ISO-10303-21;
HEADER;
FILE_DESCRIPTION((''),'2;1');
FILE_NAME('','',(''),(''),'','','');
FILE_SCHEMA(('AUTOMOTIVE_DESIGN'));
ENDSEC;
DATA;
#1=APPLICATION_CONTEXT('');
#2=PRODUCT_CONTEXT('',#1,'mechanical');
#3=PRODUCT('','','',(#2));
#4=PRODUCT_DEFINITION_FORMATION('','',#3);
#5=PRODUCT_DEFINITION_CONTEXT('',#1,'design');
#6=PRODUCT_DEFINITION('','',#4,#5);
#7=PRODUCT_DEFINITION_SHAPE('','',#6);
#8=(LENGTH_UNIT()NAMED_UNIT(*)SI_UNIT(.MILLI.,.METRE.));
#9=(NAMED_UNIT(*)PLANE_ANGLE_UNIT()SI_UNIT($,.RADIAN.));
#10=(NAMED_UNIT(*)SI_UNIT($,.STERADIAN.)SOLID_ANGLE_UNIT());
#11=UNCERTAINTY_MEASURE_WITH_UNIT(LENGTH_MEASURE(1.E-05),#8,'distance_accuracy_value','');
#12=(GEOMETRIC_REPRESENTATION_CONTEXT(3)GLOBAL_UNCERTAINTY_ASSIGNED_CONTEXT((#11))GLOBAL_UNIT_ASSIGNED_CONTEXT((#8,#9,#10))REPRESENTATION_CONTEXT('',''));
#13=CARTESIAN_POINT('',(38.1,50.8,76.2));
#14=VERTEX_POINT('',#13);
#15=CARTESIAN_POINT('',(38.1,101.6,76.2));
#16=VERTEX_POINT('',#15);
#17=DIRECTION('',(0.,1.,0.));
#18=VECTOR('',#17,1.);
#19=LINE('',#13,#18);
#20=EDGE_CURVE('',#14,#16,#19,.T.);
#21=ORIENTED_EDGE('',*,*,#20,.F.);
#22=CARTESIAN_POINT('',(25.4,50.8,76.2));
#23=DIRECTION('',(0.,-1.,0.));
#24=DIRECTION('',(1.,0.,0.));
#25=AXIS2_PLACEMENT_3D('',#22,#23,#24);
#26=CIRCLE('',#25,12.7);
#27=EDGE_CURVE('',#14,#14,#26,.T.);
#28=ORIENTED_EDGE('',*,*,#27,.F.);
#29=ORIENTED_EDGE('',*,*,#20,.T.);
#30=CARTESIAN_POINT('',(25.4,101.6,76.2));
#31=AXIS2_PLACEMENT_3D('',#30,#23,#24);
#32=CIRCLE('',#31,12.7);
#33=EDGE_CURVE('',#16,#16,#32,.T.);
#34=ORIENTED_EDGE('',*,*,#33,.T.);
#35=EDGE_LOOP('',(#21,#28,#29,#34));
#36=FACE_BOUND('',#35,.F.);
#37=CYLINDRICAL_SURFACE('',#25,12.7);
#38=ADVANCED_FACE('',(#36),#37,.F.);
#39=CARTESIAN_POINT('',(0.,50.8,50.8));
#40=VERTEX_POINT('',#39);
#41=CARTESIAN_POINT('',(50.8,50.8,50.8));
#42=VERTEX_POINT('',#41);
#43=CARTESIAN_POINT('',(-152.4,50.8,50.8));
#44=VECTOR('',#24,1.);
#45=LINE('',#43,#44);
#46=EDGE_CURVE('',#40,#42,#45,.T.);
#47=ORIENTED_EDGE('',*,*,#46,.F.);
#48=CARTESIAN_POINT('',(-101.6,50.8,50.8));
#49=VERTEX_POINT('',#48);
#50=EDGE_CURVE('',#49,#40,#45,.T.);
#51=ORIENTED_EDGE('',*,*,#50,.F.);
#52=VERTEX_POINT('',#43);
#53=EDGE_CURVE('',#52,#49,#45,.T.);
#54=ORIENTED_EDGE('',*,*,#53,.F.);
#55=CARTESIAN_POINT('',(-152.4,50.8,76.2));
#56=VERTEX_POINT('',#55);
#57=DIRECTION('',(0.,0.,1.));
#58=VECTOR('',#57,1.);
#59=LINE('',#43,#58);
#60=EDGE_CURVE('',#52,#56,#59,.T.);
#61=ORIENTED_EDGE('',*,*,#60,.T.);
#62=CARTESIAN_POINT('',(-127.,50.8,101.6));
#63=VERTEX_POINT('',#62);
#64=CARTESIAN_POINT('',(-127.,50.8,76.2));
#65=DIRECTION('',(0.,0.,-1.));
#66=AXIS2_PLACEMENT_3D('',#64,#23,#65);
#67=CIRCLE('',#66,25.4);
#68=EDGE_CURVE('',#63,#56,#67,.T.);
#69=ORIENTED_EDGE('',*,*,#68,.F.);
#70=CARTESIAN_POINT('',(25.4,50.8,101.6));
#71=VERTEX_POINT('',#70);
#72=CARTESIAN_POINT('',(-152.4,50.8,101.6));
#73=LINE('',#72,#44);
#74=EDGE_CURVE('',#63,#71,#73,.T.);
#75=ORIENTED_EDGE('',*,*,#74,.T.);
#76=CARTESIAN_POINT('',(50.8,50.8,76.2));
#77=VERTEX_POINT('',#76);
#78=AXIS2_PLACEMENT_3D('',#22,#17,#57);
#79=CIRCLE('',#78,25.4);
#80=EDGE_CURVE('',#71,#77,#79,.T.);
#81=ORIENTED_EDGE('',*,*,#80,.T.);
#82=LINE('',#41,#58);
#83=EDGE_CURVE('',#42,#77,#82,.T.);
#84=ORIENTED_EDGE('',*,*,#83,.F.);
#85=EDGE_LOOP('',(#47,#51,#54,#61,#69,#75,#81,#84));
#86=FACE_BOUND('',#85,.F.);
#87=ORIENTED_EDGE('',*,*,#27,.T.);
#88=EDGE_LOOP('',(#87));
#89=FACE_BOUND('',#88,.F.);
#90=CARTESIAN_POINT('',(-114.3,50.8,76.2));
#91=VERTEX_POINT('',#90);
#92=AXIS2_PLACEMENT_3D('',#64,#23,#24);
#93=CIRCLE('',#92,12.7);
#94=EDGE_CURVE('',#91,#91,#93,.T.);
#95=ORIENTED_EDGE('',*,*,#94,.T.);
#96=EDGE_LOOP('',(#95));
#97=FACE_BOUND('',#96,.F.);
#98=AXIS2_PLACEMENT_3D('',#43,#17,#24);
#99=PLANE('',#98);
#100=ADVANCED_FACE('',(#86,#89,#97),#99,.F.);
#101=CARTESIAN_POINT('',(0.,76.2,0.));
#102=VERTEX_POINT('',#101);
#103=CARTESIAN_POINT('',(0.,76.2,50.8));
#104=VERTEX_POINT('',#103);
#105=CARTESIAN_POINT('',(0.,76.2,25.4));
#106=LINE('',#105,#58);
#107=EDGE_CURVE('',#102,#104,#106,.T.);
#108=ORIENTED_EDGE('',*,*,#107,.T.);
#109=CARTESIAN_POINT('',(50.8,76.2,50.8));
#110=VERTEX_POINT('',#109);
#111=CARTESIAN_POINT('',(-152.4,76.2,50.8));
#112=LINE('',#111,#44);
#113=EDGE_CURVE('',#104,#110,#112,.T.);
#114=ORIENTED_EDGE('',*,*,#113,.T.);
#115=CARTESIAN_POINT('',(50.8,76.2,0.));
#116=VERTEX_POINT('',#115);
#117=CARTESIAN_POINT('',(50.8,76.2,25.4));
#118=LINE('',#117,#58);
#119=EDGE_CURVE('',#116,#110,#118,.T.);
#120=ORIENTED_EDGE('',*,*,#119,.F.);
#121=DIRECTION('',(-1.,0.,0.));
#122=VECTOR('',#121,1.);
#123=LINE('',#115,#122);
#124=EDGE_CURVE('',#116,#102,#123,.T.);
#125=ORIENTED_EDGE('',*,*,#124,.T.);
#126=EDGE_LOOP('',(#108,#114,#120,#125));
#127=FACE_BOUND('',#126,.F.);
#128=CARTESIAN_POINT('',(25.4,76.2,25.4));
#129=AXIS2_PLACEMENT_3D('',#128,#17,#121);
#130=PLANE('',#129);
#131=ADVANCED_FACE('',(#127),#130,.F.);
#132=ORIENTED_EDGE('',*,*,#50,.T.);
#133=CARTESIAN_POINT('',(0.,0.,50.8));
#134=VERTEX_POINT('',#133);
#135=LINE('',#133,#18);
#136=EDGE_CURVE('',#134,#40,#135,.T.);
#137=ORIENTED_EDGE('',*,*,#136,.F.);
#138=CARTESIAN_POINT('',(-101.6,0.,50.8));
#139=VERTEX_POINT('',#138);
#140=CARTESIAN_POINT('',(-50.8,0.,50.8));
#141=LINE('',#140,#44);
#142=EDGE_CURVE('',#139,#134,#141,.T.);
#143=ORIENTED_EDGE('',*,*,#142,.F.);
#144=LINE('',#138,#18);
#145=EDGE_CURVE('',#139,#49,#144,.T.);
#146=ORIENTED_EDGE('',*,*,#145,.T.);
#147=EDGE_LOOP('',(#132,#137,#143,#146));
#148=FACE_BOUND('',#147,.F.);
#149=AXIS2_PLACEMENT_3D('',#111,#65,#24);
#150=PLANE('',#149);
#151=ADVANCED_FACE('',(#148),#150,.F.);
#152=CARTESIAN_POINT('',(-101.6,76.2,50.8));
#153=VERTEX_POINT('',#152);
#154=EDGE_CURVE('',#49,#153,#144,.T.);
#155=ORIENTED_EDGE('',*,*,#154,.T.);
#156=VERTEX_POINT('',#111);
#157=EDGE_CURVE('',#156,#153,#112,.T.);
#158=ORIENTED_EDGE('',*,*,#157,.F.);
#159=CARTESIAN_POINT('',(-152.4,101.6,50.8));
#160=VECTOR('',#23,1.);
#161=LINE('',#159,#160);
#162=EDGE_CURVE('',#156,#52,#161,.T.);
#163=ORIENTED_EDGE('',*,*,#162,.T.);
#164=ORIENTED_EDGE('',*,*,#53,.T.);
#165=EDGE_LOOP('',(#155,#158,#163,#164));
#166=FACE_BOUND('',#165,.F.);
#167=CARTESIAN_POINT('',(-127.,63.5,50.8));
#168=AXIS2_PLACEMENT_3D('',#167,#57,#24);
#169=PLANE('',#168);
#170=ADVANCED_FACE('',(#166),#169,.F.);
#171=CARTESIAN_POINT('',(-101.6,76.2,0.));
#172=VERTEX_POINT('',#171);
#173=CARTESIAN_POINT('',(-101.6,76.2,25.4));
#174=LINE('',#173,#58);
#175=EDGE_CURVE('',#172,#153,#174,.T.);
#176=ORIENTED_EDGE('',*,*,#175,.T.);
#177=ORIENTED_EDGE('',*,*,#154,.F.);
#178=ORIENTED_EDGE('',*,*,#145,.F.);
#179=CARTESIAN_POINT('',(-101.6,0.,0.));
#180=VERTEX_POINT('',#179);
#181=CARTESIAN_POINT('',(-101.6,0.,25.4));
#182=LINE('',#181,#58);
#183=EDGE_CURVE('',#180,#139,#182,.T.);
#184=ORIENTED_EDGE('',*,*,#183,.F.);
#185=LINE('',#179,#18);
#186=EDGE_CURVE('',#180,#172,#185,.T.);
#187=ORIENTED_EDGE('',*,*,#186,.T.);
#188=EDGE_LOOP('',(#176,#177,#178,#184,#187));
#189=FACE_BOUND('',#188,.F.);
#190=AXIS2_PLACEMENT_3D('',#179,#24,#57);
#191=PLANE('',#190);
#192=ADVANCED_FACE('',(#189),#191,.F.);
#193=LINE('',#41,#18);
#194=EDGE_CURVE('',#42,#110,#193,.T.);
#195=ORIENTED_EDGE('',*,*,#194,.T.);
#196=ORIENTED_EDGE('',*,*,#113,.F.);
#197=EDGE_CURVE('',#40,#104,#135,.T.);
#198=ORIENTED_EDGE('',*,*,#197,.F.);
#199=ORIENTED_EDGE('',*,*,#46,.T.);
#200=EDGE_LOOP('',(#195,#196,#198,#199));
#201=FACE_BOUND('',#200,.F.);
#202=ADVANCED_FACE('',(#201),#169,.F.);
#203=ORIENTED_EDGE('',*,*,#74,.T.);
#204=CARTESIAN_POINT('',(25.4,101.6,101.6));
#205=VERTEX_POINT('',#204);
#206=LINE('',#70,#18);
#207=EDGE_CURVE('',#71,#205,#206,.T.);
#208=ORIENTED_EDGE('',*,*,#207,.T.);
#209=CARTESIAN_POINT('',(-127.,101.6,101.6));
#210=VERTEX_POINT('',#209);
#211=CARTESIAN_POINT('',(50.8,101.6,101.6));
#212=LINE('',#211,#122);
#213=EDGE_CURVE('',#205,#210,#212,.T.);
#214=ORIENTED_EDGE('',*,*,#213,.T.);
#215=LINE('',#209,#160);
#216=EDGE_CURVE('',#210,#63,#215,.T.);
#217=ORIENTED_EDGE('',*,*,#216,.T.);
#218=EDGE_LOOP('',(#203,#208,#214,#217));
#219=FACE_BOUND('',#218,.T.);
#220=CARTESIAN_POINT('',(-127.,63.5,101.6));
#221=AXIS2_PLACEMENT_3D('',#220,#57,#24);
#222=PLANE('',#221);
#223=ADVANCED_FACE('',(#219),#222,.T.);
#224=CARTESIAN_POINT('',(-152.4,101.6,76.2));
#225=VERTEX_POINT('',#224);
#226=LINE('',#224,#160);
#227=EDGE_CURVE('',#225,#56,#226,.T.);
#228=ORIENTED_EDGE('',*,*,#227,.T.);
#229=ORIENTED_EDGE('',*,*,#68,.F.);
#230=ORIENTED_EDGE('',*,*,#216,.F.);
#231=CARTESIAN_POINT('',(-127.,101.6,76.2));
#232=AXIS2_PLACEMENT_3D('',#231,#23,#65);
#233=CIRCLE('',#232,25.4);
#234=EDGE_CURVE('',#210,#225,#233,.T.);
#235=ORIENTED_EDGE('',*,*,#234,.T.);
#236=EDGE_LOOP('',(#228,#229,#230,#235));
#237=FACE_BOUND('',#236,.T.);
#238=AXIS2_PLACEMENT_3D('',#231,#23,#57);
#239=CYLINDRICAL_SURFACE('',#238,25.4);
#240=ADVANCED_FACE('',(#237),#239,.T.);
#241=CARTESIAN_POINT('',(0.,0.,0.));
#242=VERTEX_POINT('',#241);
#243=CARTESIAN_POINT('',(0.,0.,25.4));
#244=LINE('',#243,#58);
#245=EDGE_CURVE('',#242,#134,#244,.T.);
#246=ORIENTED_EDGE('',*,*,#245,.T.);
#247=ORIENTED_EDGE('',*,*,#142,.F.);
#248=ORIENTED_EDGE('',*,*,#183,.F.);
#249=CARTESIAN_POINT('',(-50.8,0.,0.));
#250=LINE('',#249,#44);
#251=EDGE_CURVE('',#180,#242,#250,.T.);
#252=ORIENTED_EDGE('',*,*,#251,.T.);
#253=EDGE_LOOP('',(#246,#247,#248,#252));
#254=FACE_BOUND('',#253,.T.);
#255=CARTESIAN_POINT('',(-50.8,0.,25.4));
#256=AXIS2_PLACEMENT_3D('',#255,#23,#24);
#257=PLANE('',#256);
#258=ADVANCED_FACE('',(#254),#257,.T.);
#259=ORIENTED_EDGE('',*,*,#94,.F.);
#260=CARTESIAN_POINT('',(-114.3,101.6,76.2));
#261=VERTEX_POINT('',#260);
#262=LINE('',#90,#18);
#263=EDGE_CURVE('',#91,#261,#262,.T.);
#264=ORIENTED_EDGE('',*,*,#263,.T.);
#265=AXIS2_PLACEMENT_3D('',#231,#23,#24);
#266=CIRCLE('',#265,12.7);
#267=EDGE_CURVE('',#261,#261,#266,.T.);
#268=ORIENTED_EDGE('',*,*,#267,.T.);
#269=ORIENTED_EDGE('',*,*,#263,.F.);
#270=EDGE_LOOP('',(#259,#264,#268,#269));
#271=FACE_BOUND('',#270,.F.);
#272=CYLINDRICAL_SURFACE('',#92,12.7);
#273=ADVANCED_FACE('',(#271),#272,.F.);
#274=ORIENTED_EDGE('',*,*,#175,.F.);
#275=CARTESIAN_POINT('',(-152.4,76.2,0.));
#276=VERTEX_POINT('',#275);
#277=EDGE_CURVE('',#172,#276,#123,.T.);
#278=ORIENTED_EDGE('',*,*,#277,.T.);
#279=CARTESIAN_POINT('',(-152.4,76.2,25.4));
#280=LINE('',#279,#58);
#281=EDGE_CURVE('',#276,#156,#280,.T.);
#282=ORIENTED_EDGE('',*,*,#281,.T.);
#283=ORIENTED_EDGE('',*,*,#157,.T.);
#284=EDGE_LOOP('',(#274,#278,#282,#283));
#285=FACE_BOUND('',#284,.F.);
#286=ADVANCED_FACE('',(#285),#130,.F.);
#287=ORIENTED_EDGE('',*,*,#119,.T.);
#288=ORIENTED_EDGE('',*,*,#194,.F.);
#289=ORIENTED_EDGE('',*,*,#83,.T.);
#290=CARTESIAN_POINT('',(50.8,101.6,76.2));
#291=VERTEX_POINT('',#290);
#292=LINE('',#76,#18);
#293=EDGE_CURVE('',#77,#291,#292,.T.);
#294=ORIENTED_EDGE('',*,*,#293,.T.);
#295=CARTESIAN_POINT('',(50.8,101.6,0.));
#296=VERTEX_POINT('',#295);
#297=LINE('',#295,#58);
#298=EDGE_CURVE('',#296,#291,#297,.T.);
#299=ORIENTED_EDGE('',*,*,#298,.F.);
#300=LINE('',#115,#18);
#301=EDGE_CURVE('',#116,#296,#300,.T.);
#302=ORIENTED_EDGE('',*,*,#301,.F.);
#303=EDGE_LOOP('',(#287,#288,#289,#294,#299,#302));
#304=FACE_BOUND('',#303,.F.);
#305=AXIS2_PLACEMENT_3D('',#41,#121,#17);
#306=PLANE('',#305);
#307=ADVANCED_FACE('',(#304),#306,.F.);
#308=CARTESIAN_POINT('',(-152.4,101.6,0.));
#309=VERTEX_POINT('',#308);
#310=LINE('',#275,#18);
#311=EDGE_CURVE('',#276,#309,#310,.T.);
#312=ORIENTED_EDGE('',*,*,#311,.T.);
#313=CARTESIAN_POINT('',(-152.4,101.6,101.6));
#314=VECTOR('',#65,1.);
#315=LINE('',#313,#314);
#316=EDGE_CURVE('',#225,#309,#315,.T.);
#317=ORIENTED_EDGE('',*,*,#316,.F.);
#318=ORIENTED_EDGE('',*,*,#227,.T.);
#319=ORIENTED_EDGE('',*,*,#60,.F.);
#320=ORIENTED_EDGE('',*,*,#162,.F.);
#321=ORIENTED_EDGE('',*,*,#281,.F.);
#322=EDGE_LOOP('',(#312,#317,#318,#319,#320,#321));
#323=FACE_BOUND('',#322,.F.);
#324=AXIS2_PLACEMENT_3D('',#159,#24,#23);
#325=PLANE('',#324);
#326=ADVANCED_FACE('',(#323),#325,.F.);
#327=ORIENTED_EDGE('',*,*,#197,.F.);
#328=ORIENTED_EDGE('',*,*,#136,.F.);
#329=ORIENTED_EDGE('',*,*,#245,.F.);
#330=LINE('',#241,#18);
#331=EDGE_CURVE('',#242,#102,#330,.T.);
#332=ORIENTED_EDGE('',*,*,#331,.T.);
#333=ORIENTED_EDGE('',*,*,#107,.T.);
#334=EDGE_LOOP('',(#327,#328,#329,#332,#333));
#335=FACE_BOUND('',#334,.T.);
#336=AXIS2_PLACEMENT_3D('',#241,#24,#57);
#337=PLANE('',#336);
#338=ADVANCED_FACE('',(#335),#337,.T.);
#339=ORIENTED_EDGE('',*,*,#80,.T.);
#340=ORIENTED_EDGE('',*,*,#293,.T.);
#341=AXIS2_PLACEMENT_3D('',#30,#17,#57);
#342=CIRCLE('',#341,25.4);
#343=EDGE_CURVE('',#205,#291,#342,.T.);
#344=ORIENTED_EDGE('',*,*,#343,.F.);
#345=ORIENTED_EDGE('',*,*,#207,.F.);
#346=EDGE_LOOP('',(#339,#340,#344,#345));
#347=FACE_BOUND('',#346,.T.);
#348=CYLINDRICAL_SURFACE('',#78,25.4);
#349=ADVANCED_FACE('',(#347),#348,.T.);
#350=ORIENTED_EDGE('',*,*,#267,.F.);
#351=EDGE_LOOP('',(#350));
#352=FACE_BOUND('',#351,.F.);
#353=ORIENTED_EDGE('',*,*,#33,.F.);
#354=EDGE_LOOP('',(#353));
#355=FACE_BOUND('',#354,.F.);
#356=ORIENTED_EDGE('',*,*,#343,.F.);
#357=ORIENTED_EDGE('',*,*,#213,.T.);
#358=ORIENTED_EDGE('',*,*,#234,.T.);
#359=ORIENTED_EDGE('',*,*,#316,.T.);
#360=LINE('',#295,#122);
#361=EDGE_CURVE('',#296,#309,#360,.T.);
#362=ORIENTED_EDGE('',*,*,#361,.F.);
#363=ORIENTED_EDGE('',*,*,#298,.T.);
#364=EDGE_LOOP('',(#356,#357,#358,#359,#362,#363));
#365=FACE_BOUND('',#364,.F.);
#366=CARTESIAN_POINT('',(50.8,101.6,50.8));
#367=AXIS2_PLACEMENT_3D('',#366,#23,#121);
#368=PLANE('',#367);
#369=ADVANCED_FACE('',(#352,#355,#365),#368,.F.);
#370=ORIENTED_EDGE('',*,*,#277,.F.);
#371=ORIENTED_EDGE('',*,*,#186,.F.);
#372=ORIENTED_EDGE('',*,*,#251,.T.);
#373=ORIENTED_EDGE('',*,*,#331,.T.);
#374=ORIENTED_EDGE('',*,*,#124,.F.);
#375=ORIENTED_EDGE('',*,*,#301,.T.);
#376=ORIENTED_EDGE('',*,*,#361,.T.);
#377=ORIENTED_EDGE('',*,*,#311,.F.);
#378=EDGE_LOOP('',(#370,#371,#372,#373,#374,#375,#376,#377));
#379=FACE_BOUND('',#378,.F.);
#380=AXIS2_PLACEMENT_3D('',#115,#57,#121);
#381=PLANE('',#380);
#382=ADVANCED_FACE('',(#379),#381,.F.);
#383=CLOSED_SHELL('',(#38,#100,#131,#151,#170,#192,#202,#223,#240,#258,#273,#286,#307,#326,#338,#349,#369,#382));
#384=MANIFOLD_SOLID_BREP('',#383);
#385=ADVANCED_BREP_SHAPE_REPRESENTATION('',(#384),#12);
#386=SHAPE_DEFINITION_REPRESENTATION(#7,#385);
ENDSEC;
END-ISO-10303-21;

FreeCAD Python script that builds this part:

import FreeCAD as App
import Part
import Sketcher
Q = App.Units.Quantity


def edges_at(feature, points):
    """Names of the edges that pass closest to the given points."""
    edges = feature.Shape.Edges
    near = lambda p: min(range(len(edges)), key=lambda i: edges[i].distToShape(Part.Vertex(*p))[0])
    return sorted({f"Edge{near(p) + 1}" for p in points})

doc = App.newDocument("Part")
params = doc.addObject("Spreadsheet::Sheet", "Params")
for row, (alias, value) in enumerate([
    ("sketch1_width", "4 in"),
    ("sketch1_height", "2 in"),
    ("pad1_length", "3 in"),
    ("sketch2_width", "8 in"),
    ("sketch2_height", "2 in"),
    ("pad2_length", "1 in"),
    ("sketch3_width", "8 in"),
    ("sketch3_height", "2 in"),
    ("pad3_length", "2 in"),
    ("fillet_radius", "1 in"),
    ("fillet2_radius", "1 in"),
    ("sketch4_diameter", "1 in"),
    ("pocket1_length", "2 in"),
], start=1):
    params.set(f"A{row}", alias)
    params.set(f"B{row}", "=" + value)
    params.setAlias(f"B{row}", alias)

body = doc.addObject("PartDesign::Body", "Body")

sketch1 = body.newObject("Sketcher::SketchObject", "Sketch")
sketch1.AttachmentSupport = (doc.getObject("XZ_Plane"), [""])
sketch1.MapMode = "FlatFace"
sketch1.addGeometry(Part.LineSegment(App.Vector(-102, 51, 0), App.Vector(-102, 0, 0)), False)
sketch1.addGeometry(Part.LineSegment(App.Vector(-102, 0, 0), App.Vector(0, 0, 0)), False)
sketch1.addGeometry(Part.LineSegment(App.Vector(0, 0, 0), App.Vector(0, 51, 0)), False)
sketch1.addGeometry(Part.LineSegment(App.Vector(0, 51, 0), App.Vector(-102, 51, 0)), False)
sketch1.addConstraint(Sketcher.Constraint("Coincident", 0, 2, 1, 1))
sketch1.addConstraint(Sketcher.Constraint("Coincident", 1, 2, 2, 1))
sketch1.addConstraint(Sketcher.Constraint("Coincident", 2, 2, 3, 1))
sketch1.addConstraint(Sketcher.Constraint("Coincident", 3, 2, 0, 1))
sketch1.addConstraint(Sketcher.Constraint("Vertical", 0))
sketch1.addConstraint(Sketcher.Constraint("Horizontal", 1))
sketch1.addConstraint(Sketcher.Constraint("Vertical", 2))
sketch1.addConstraint(Sketcher.Constraint("Horizontal", 3))
sketch1.addConstraint(Sketcher.Constraint("Coincident", 1, 2, -1, 1))
sketch1.addConstraint(Sketcher.Constraint("DistanceX", 1, 1, 1, 2, Q("4 in")))
sketch1.addConstraint(Sketcher.Constraint("DistanceY", 0, 2, 0, 1, Q("2 in")))
sketch1.setExpression("Constraints[9]", "Params.sketch1_width")
sketch1.setExpression("Constraints[10]", "Params.sketch1_height")
pad1 = body.newObject("PartDesign::Pad", "Pad")
pad1.Profile = sketch1
pad1.setExpression("Length", "Params.pad1_length")
pad1.Reversed = True

sketch2 = body.newObject("Sketcher::SketchObject", "Sketch001")
sketch2.AttachmentSupport = (doc.getObject("XZ_Plane"), [""])
sketch2.MapMode = "FlatFace"
sketch2.AttachmentOffset = App.Placement(App.Vector(0, 0, -3 * 25.4), App.Rotation())
sketch2.addGeometry(Part.LineSegment(App.Vector(51, 51, 0), App.Vector(51, 0, 0)), False)
sketch2.addGeometry(Part.LineSegment(App.Vector(51, 0, 0), App.Vector(-152, 0, 0)), False)
sketch2.addGeometry(Part.LineSegment(App.Vector(-152, 0, 0), App.Vector(-152, 51, 0)), False)
sketch2.addGeometry(Part.LineSegment(App.Vector(-152, 51, 0), App.Vector(51, 51, 0)), False)
sketch2.addConstraint(Sketcher.Constraint("Coincident", 0, 2, 1, 1))
sketch2.addConstraint(Sketcher.Constraint("Coincident", 1, 2, 2, 1))
sketch2.addConstraint(Sketcher.Constraint("Coincident", 2, 2, 3, 1))
sketch2.addConstraint(Sketcher.Constraint("Coincident", 3, 2, 0, 1))
sketch2.addConstraint(Sketcher.Constraint("Vertical", 0))
sketch2.addConstraint(Sketcher.Constraint("Horizontal", 1))
sketch2.addConstraint(Sketcher.Constraint("Vertical", 2))
sketch2.addConstraint(Sketcher.Constraint("Horizontal", 3))
sketch2.addConstraint(Sketcher.Constraint("PointOnObject", 0, 2, -1))
sketch2.addConstraint(Sketcher.Constraint("DistanceX", 1, 2, 1, 1, Q("8 in")))
sketch2.addConstraint(Sketcher.Constraint("DistanceY", 0, 2, 0, 1, Q("2 in")))
sketch2.addConstraint(Sketcher.Constraint("DistanceX", -1, 1, 0, 2, Q("2 in")))
sketch2.setExpression("Constraints[9]", "Params.sketch2_width")
sketch2.setExpression("Constraints[10]", "Params.sketch2_height")
pad2 = body.newObject("PartDesign::Pad", "Pad001")
pad2.Profile = sketch2
pad2.setExpression("Length", "Params.pad2_length")
pad2.Reversed = True

sketch3 = body.newObject("Sketcher::SketchObject", "Sketch002")
sketch3.AttachmentSupport = (doc.getObject("XY_Plane"), [""])
sketch3.MapMode = "FlatFace"
sketch3.AttachmentOffset = App.Placement(App.Vector(0, 0, 2 * 25.4), App.Rotation())
sketch3.addGeometry(Part.LineSegment(App.Vector(-152, 51, 0), App.Vector(51, 51, 0)), False)
sketch3.addGeometry(Part.LineSegment(App.Vector(51, 51, 0), App.Vector(51, 102, 0)), False)
sketch3.addGeometry(Part.LineSegment(App.Vector(51, 102, 0), App.Vector(-152, 102, 0)), False)
sketch3.addGeometry(Part.LineSegment(App.Vector(-152, 102, 0), App.Vector(-152, 51, 0)), False)
sketch3.addConstraint(Sketcher.Constraint("Coincident", 0, 2, 1, 1))
sketch3.addConstraint(Sketcher.Constraint("Coincident", 1, 2, 2, 1))
sketch3.addConstraint(Sketcher.Constraint("Coincident", 2, 2, 3, 1))
sketch3.addConstraint(Sketcher.Constraint("Coincident", 3, 2, 0, 1))
sketch3.addConstraint(Sketcher.Constraint("Horizontal", 0))
sketch3.addConstraint(Sketcher.Constraint("Vertical", 1))
sketch3.addConstraint(Sketcher.Constraint("Horizontal", 2))
sketch3.addConstraint(Sketcher.Constraint("Vertical", 3))
sketch3.addConstraint(Sketcher.Constraint("DistanceX", 0, 1, 0, 2, Q("8 in")))
sketch3.addConstraint(Sketcher.Constraint("DistanceY", 1, 1, 1, 2, Q("2 in")))
sketch3.addConstraint(Sketcher.Constraint("DistanceX", -1, 1, 0, 2, Q("2 in")))
sketch3.addConstraint(Sketcher.Constraint("DistanceY", -1, 1, 0, 2, Q("2 in")))
sketch3.setExpression("Constraints[8]", "Params.sketch3_width")
sketch3.setExpression("Constraints[9]", "Params.sketch3_height")
pad3 = body.newObject("PartDesign::Pad", "Pad002")
pad3.Profile = sketch3
pad3.setExpression("Length", "Params.pad3_length")
doc.recompute()

fillet = body.newObject("PartDesign::Fillet", "Fillet")
fillet.Base = (pad3, edges_at(pad3, [(50.8, 76.2, 101.6)]))
fillet.setExpression("Radius", "Params.fillet_radius")
doc.recompute()

fillet2 = body.newObject("PartDesign::Fillet", "Fillet001")
fillet2.Base = (fillet, edges_at(fillet, [(-152.4, 76.2, 101.6)]))
fillet2.setExpression("Radius", "Params.fillet2_radius")

sketch4 = body.newObject("Sketcher::SketchObject", "Sketch003")
sketch4.AttachmentSupport = (doc.getObject("XZ_Plane"), [""])
sketch4.MapMode = "FlatFace"
sketch4.AttachmentOffset = App.Placement(App.Vector(0, 0, -2 * 25.4), App.Rotation())
sketch4.addGeometry(Part.Circle(App.Vector(-127, 76, 0), App.Vector(0, 0, 1), 13), False)
sketch4.addGeometry(Part.Circle(App.Vector(25, 76, 0), App.Vector(0, 0, 1), 13), False)
sketch4.addConstraint(Sketcher.Constraint("Equal", 0, 1))
sketch4.addConstraint(Sketcher.Constraint("Horizontal", 0, 3, 1, 3))
sketch4.addConstraint(Sketcher.Constraint("Diameter", 0, Q("1 in")))
sketch4.addConstraint(Sketcher.Constraint("DistanceX", 0, 3, -1, 1, Q("5 in")))
sketch4.addConstraint(Sketcher.Constraint("DistanceY", -1, 1, 0, 3, Q("3 in")))
sketch4.addConstraint(Sketcher.Constraint("DistanceX", -1, 1, 1, 3, Q("1 in")))
sketch4.setExpression("Constraints[2]", "Params.sketch4_diameter")
pocket1 = body.newObject("PartDesign::Pocket", "Pocket")
pocket1.Profile = sketch4
pocket1.setExpression("Length", "Params.pocket1_length")

doc.recompute()
